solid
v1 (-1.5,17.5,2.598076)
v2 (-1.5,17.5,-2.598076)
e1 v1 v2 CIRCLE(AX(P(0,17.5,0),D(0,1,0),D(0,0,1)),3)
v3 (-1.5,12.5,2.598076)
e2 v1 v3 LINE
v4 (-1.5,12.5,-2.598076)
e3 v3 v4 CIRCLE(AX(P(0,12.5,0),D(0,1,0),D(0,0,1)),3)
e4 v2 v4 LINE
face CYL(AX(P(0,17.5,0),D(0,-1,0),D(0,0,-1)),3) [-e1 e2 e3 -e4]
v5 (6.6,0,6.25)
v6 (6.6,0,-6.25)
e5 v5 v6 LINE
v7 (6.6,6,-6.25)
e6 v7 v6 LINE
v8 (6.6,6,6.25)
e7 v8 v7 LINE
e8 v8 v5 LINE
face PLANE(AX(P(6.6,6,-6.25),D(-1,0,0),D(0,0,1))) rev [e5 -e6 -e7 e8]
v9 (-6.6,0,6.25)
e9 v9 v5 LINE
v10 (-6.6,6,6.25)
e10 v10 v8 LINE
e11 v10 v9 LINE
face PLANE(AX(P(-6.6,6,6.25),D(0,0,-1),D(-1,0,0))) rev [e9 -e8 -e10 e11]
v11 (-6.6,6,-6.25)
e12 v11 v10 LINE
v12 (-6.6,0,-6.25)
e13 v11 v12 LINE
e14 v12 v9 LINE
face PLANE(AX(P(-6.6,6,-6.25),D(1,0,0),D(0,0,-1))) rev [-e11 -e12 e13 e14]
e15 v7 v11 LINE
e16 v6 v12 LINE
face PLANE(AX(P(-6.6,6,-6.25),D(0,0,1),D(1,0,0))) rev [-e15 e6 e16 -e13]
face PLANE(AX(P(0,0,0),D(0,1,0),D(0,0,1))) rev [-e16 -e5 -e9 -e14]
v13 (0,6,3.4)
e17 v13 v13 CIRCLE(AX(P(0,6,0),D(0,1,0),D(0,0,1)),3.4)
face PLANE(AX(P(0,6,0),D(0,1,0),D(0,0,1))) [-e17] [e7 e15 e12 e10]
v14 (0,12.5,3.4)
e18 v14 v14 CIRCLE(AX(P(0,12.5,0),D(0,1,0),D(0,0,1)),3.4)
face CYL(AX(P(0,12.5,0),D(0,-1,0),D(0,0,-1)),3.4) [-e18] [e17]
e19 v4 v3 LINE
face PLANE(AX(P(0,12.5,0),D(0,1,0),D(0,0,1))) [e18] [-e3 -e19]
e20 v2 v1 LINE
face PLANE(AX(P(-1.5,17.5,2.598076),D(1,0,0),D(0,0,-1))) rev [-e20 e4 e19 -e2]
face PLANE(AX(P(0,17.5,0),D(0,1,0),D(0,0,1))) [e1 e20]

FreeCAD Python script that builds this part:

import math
import FreeCAD as App
import Part
import Sketcher
from FreeCAD import Vector
Q = App.Units.Quantity

doc = App.newDocument("Part")
body = doc.addObject("PartDesign::Body", "Body")

# Sketch on XZ plane
sketch1 = doc.addObject("Sketcher::SketchObject", "Sketch")
body.addObject(sketch1)
sketch1.AttachmentSupport = (doc.XZ_Plane, [""])
sketch1.MapMode = "FlatFace"
sketch1.addGeometry(Part.LineSegment(Vector(-6.6, -6.25, 0), Vector(-6.6, 6.25, 0)), False)
sketch1.addGeometry(Part.LineSegment(Vector(-6.6, 6.25, 0), Vector(6.6, 6.25, 0)), False)
sketch1.addGeometry(Part.LineSegment(Vector(6.6, 6.25, 0), Vector(6.6, -6.25, 0)), False)
sketch1.addGeometry(Part.LineSegment(Vector(6.6, -6.25, 0), Vector(-6.6, -6.25, 0)), False)
sketch1.addConstraint(Sketcher.Constraint("Coincident", 0, 2, 1, 1))
sketch1.addConstraint(Sketcher.Constraint("Coincident", 1, 2, 2, 1))
sketch1.addConstraint(Sketcher.Constraint("Coincident", 2, 2, 3, 1))
sketch1.addConstraint(Sketcher.Constraint("Coincident", 3, 2, 0, 1))
sketch1.addConstraint(Sketcher.Constraint("Vertical", 0))
sketch1.addConstraint(Sketcher.Constraint("Horizontal", 1))
sketch1.addConstraint(Sketcher.Constraint("Vertical", 2))
sketch1.addConstraint(Sketcher.Constraint("Horizontal", 3))
sketch1.addConstraint(Sketcher.Constraint("Symmetric", 0, 2, 2, 2, -1, 1))
sketch1.addConstraint(Sketcher.Constraint("DistanceX", 1, 1, 1, 2, Q("13.2 mm")))
sketch1.addConstraint(Sketcher.Constraint("DistanceY", 0, 1, 0, 2, Q("12.5 mm")))
pad1 = doc.addObject("PartDesign::Pad", "Pad")
body.addObject(pad1)
pad1.Profile = sketch1
pad1.Length = 6
pad1.Reversed = True

# Sketch on XZ plane
sketch2 = doc.addObject("Sketcher::SketchObject", "Sketch001")
body.addObject(sketch2)
sketch2.AttachmentSupport = (doc.XZ_Plane, [""])
sketch2.MapMode = "FlatFace"
sketch2.AttachmentOffset = App.Placement(Vector(0, 0, -6), App.Rotation())
sketch2.addGeometry(Part.Circle(Vector(0, 0, 0), Vector(0, 0, 1), 3.4), False)
sketch2.addConstraint(Sketcher.Constraint("Coincident", 0, 3, -1, 1))
sketch2.addConstraint(Sketcher.Constraint("Diameter", 0, Q("6.8 mm")))
pad2 = doc.addObject("PartDesign::Pad", "Pad001")
body.addObject(pad2)
pad2.Profile = sketch2
pad2.Length = 6.5
pad2.Reversed = True

# Sketch on XZ plane
sketch3 = doc.addObject("Sketcher::SketchObject", "Sketch002")
body.addObject(sketch3)
sketch3.AttachmentSupport = (doc.XZ_Plane, [""])
sketch3.MapMode = "FlatFace"
sketch3.AttachmentOffset = App.Placement(Vector(0, 0, -12.5), App.Rotation())
sketch3.addGeometry(Part.LineSegment(Vector(-1.5, -2.598076, 0), Vector(-1.5, 2.598076, 0)), False)
sketch3.addGeometry(Part.ArcOfCircle(Part.Circle(Vector(0, 0, 0), Vector(0, 0, 1), 3), math.radians(-120), math.radians(120)), False)
sketch3.addConstraint(Sketcher.Constraint("Coincident", 0, 1, 1, 1))
sketch3.addConstraint(Sketcher.Constraint("Coincident", 1, 2, 0, 2))
sketch3.addConstraint(Sketcher.Constraint("Vertical", 0))
sketch3.addConstraint(Sketcher.Constraint("Coincident", 1, 3, -1, 1))
sketch3.addConstraint(Sketcher.Constraint("Radius", 1, Q("3 mm")))
sketch3.addConstraint(Sketcher.Constraint("DistanceX", 0, 1, -1, 1, Q("1.5 mm")))
pad3 = doc.addObject("PartDesign::Pad", "Pad002")
body.addObject(pad3)
pad3.Profile = sketch3
pad3.Length = 5
pad3.Reversed = True

doc.recompute()
